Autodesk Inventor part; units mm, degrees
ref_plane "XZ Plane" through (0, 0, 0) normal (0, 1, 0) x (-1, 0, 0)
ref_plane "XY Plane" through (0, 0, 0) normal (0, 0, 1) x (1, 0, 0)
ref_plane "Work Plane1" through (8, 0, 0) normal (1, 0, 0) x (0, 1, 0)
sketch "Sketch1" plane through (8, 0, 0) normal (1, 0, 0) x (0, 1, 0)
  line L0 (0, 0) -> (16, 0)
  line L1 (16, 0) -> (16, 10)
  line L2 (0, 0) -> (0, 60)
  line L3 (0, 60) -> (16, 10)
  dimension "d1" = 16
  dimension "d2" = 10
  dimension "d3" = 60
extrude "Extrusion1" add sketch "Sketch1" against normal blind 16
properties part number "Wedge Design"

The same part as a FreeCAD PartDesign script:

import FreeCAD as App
import Part
import Sketcher
from FreeCAD import Vector


def add_polygon(sketch, points):
    """Adds a closed chain of lines whose ends are joined by coincident constraints."""
    first, n = sketch.GeometryCount, len(points)
    for a, b in zip(points, points[1:] + points[:1]):
        sketch.addGeometry(Part.LineSegment(App.Vector(*a, 0), App.Vector(*b, 0)), False)
    for i in range(n):
        sketch.addConstraint(Sketcher.Constraint("Coincident", first + i, 2, first + (i + 1) % n, 1))

doc = App.newDocument("Part")
body = doc.addObject("PartDesign::Body", "Body")

sketch1 = doc.addObject("Sketcher::SketchObject", "Sketch")
body.addObject(sketch1)
sketch1.AttachmentSupport = (doc.YZ_Plane, [""])
sketch1.MapMode = "FlatFace"
sketch1.AttachmentOffset = App.Placement(Vector(0, 0, 8), App.Rotation())
add_polygon(sketch1, [(0, 60), (0, 0), (16, 0), (16, 10)])
sketch1.addConstraint(Sketcher.Constraint("Vertical", 0))
sketch1.addConstraint(Sketcher.Constraint("Horizontal", 1))
sketch1.addConstraint(Sketcher.Constraint("Vertical", 2))
sketch1.addConstraint(Sketcher.Constraint("Coincident", 0, 2, -1, 1))
sketch1.addConstraint(Sketcher.Constraint("DistanceX", 1, 1, 1, 2, 16.0))
sketch1.addConstraint(Sketcher.Constraint("DistanceY", 0, 2, 0, 1, 60.0))
sketch1.addConstraint(Sketcher.Constraint("DistanceY", 2, 1, 2, 2, 10.0))
pad1 = doc.addObject("PartDesign::Pad", "Pad")
body.addObject(pad1)
pad1.Profile = sketch1
pad1.Length = 16
pad1.Reversed = True

doc.recompute()
